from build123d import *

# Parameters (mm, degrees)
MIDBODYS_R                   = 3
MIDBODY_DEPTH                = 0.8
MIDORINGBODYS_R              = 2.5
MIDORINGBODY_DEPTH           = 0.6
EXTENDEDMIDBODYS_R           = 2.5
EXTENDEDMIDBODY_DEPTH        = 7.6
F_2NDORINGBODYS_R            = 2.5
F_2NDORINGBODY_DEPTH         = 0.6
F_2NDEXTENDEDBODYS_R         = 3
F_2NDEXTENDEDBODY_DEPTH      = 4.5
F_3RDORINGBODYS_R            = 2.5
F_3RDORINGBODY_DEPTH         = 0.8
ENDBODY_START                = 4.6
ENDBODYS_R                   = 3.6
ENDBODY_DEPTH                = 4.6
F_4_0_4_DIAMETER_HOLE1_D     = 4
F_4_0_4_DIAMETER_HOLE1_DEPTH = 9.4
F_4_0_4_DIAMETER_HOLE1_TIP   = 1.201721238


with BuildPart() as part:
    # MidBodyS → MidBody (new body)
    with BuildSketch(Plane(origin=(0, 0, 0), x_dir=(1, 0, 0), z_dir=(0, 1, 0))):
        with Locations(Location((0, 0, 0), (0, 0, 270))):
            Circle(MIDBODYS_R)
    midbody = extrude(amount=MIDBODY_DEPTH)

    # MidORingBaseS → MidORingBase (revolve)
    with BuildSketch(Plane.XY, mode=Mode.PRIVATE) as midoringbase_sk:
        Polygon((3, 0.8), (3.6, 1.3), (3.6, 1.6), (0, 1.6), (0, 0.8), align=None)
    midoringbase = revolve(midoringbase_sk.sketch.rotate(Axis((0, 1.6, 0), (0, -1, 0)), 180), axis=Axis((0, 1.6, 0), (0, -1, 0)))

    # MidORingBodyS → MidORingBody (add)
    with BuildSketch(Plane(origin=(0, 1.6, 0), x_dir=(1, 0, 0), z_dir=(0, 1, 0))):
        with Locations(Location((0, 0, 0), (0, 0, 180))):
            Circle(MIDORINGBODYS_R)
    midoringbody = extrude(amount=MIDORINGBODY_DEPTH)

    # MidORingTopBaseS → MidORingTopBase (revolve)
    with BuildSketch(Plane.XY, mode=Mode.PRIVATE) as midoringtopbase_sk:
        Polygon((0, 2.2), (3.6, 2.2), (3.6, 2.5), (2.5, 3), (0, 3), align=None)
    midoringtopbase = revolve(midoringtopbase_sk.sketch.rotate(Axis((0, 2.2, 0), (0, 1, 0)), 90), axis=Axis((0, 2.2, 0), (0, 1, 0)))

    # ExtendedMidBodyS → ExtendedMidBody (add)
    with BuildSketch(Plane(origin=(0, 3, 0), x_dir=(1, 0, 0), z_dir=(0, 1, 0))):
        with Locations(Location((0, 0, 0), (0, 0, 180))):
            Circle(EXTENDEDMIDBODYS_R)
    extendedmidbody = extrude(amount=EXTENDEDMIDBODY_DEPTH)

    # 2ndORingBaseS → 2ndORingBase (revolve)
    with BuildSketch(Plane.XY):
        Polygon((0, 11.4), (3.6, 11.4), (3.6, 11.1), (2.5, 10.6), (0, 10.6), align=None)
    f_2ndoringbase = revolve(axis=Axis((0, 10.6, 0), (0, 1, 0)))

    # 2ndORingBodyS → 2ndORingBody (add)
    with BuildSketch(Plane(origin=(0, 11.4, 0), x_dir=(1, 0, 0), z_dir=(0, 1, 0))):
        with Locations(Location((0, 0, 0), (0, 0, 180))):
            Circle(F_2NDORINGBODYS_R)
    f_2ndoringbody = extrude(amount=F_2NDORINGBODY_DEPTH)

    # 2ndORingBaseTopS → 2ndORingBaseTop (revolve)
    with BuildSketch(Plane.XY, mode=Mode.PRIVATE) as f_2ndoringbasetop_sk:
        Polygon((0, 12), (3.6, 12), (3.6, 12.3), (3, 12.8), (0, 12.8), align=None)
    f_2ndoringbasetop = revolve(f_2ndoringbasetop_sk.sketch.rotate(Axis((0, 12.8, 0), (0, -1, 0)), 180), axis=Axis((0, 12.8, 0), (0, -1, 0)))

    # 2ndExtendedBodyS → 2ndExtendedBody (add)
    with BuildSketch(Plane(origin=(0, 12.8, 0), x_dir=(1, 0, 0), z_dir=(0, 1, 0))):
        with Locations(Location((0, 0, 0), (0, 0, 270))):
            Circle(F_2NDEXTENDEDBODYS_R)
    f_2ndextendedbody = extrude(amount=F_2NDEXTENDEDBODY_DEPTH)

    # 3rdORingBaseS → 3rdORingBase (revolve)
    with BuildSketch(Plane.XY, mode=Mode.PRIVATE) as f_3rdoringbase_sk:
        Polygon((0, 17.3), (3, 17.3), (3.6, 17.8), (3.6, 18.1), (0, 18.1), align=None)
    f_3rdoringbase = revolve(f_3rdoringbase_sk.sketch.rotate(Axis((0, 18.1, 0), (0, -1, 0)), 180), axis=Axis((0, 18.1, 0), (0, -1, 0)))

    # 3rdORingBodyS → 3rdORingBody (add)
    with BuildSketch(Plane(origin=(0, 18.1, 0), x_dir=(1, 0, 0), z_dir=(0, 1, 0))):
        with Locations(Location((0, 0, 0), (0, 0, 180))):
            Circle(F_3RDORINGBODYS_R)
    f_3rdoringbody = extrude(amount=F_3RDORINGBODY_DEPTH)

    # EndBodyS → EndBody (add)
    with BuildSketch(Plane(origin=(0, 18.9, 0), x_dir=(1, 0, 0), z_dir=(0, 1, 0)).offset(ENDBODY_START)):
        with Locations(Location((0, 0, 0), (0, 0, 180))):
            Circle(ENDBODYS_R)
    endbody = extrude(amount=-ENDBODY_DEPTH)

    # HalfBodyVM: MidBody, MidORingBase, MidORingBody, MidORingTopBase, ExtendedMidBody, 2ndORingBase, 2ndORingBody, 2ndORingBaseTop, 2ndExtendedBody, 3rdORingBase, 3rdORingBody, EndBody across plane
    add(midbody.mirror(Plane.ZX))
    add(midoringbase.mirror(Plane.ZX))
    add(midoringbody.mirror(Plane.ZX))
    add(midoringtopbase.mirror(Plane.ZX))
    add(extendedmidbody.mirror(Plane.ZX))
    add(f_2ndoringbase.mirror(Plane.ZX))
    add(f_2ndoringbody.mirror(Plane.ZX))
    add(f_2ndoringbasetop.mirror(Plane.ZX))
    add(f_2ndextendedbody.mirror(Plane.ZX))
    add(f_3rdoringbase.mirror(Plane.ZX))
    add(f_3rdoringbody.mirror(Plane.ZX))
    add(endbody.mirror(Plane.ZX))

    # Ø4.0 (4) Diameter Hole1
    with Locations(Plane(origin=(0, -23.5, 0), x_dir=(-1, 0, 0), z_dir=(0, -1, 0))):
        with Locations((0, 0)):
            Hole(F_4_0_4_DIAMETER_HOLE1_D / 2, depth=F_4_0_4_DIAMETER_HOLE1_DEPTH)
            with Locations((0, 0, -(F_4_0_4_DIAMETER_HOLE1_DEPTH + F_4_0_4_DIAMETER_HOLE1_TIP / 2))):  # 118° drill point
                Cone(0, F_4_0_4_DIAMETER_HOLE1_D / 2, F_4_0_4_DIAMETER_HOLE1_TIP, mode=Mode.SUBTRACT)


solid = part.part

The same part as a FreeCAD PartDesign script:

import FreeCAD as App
import Part
import Sketcher

V = App.Vector

doc = App.newDocument("Part")
body = doc.addObject("PartDesign::Body", "Body")

sketch1 = doc.addObject("Sketcher::SketchObject", "Sketch")
body.addObject(sketch1)
sketch1.AttachmentSupport = (doc.XZ_Plane, [""])
sketch1.MapMode = "FlatFace"
sketch1.addGeometry(Part.Circle(V(0, 0, 0), V(0, 0, 1), 3), False)
sketch1.addConstraint([
    Sketcher.Constraint("Coincident", 0, 3, -1, 1),
    Sketcher.Constraint("Diameter", 0, 6.0),
])
pad1 = doc.addObject("PartDesign::Pad", "Pad")
body.addObject(pad1)
pad1.Profile = sketch1
pad1.Length = 0.8
pad1.Reversed = True

sketch2 = doc.addObject("Sketcher::SketchObject", "Sketch001")
body.addObject(sketch2)
sketch2.AttachmentSupport = (doc.XY_Plane, [""])
sketch2.MapMode = "FlatFace"
sketch2.addGeometry([
    Part.LineSegment(V(3, 0.8, 0), V(3.6, 1.3, 0)),
    Part.LineSegment(V(3.6, 1.3, 0), V(3.6, 1.6, 0)),
    Part.LineSegment(V(3.6, 1.6, 0), V(0, 1.6, 0)),
    Part.LineSegment(V(0, 1.6, 0), V(0, 0.8, 0)),
    Part.LineSegment(V(0, 0.8, 0), V(3, 0.8, 0)),
], False)
sketch2.addConstraint([
    Sketcher.Constraint("Coincident", 0, 2, 1, 1),
    Sketcher.Constraint("Coincident", 1, 2, 2, 1),
    Sketcher.Constraint("Coincident", 2, 2, 3, 1),
    Sketcher.Constraint("Coincident", 3, 2, 4, 1),
    Sketcher.Constraint("Coincident", 4, 2, 0, 1),
    Sketcher.Constraint("Vertical", 1),
    Sketcher.Constraint("Horizontal", 2),
    Sketcher.Constraint("Vertical", 3),
    Sketcher.Constraint("Horizontal", 4),
    Sketcher.Constraint("PointOnObject", 2, 2, -2),
    Sketcher.Constraint("DistanceX", 4, 1, 4, 2, 3.0),
    Sketcher.Constraint("DistanceX", 2, 2, 2, 1, 3.6),
    Sketcher.Constraint("DistanceY", 1, 1, 1, 2, 0.3),
    Sketcher.Constraint("DistanceY", 3, 2, 3, 1, 0.8),
    Sketcher.Constraint("DistanceY", -1, 1, 0, 2, 1.3),
])
revolution = doc.addObject("PartDesign::Revolution", "Revolution")
body.addObject(revolution)
revolution.Profile = sketch2
revolution.ReferenceAxis = (sketch2, ["V_Axis"])
revolution.Angle = 360

sketch3 = doc.addObject("Sketcher::SketchObject", "Sketch002")
body.addObject(sketch3)
sketch3.AttachmentSupport = (doc.XZ_Plane, [""])
sketch3.MapMode = "FlatFace"
sketch3.AttachmentOffset = App.Placement(V(0, 0, -1.6), App.Rotation())
sketch3.addGeometry(Part.Circle(V(0, 0, 0), V(0, 0, 1), 2.5), False)
sketch3.addConstraint([
    Sketcher.Constraint("Coincident", 0, 3, -1, 1),
    Sketcher.Constraint("Diameter", 0, 5.0),
])
pad2 = doc.addObject("PartDesign::Pad", "Pad001")
body.addObject(pad2)
pad2.Profile = sketch3
pad2.Length = 0.6
pad2.Reversed = True

sketch4 = doc.addObject("Sketcher::SketchObject", "Sketch003")
body.addObject(sketch4)
sketch4.AttachmentSupport = (doc.XY_Plane, [""])
sketch4.MapMode = "FlatFace"
sketch4.addGeometry([
    Part.LineSegment(V(0, 2.2, 0), V(3.6, 2.2, 0)),
    Part.LineSegment(V(3.6, 2.2, 0), V(3.6, 2.5, 0)),
    Part.LineSegment(V(3.6, 2.5, 0), V(2.5, 3, 0)),
    Part.LineSegment(V(2.5, 3, 0), V(0, 3, 0)),
    Part.LineSegment(V(0, 3, 0), V(0, 2.2, 0)),
], False)
sketch4.addConstraint([
    Sketcher.Constraint("Coincident", 0, 2, 1, 1),
    Sketcher.Constraint("Coincident", 1, 2, 2, 1),
    Sketcher.Constraint("Coincident", 2, 2, 3, 1),
    Sketcher.Constraint("Coincident", 3, 2, 4, 1),
    Sketcher.Constraint("Coincident", 4, 2, 0, 1),
    Sketcher.Constraint("Horizontal", 0),
    Sketcher.Constraint("Vertical", 1),
    Sketcher.Constraint("Horizontal", 3),
    Sketcher.Constraint("Vertical", 4),
    Sketcher.Constraint("PointOnObject", 3, 2, -2),
    Sketcher.Constraint("DistanceX", 0, 1, 0, 2, 3.6),
    Sketcher.Constraint("DistanceX", 3, 2, 3, 1, 2.5),
    Sketcher.Constraint("DistanceY", 1, 1, 1, 2, 0.3),
    Sketcher.Constraint("DistanceY", 4, 2, 4, 1, 0.8),
    Sketcher.Constraint("DistanceY", -1, 1, 2, 2, 3.0),
])
revolution2 = doc.addObject("PartDesign::Revolution", "Revolution001")
body.addObject(revolution2)
revolution2.Profile = sketch4
revolution2.ReferenceAxis = (sketch4, ["V_Axis"])
revolution2.Angle = 360

sketch5 = doc.addObject("Sketcher::SketchObject", "Sketch004")
body.addObject(sketch5)
sketch5.AttachmentSupport = (doc.XZ_Plane, [""])
sketch5.MapMode = "FlatFace"
sketch5.AttachmentOffset = App.Placement(V(0, 0, -3), App.Rotation())
sketch5.addGeometry(Part.Circle(V(0, 0, 0), V(0, 0, 1), 2.5), False)
sketch5.addConstraint([
    Sketcher.Constraint("Coincident", 0, 3, -1, 1),
    Sketcher.Constraint("Diameter", 0, 5.0),
])
pad3 = doc.addObject("PartDesign::Pad", "Pad002")
body.addObject(pad3)
pad3.Profile = sketch5
pad3.Length = 7.6
pad3.Reversed = True

sketch6 = doc.addObject("Sketcher::SketchObject", "Sketch005")
body.addObject(sketch6)
sketch6.AttachmentSupport = (doc.XY_Plane, [""])
sketch6.MapMode = "FlatFace"
sketch6.addGeometry([
    Part.LineSegment(V(3.6, 11.4, 0), V(0, 11.4, 0)),
    Part.LineSegment(V(0, 11.4, 0), V(0, 10.6, 0)),
    Part.LineSegment(V(0, 10.6, 0), V(2.5, 10.6, 0)),
    Part.LineSegment(V(2.5, 10.6, 0), V(3.6, 11.1, 0)),
    Part.LineSegment(V(3.6, 11.1, 0), V(3.6, 11.4, 0)),
], False)
sketch6.addConstraint([
    Sketcher.Constraint("Coincident", 0, 2, 1, 1),
    Sketcher.Constraint("Coincident", 1, 2, 2, 1),
    Sketcher.Constraint("Coincident", 2, 2, 3, 1),
    Sketcher.Constraint("Coincident", 3, 2, 4, 1),
    Sketcher.Constraint("Coincident", 4, 2, 0, 1),
    Sketcher.Constraint("Horizontal", 0),
    Sketcher.Constraint("Vertical", 1),
    Sketcher.Constraint("Horizontal", 2),
    Sketcher.Constraint("Vertical", 4),
    Sketcher.Constraint("PointOnObject", 0, 2, -2),
    Sketcher.Constraint("DistanceX", 0, 2, 0, 1, 3.6),
    Sketcher.Constraint("DistanceX", 2, 1, 2, 2, 2.5),
    Sketcher.Constraint("DistanceY", 1, 2, 1, 1, 0.8),
    Sketcher.Constraint("DistanceY", 4, 1, 4, 2, 0.3),
    Sketcher.Constraint("DistanceY", -1, 1, 0, 2, 11.4),
])
revolution3 = doc.addObject("PartDesign::Revolution", "Revolution002")
body.addObject(revolution3)
revolution3.Profile = sketch6
revolution3.ReferenceAxis = (sketch6, ["V_Axis"])
revolution3.Angle = 360

sketch7 = doc.addObject("Sketcher::SketchObject", "Sketch006")
body.addObject(sketch7)
sketch7.AttachmentSupport = (doc.XZ_Plane, [""])
sketch7.MapMode = "FlatFace"
sketch7.AttachmentOffset = App.Placement(V(0, 0, -11.4), App.Rotation())
sketch7.addGeometry(Part.Circle(V(0, 0, 0), V(0, 0, 1), 2.5), False)
sketch7.addConstraint([
    Sketcher.Constraint("Coincident", 0, 3, -1, 1),
    Sketcher.Constraint("Diameter", 0, 5.0),
])
pad4 = doc.addObject("PartDesign::Pad", "Pad003")
body.addObject(pad4)
pad4.Profile = sketch7
pad4.Length = 0.6
pad4.Reversed = True

sketch8 = doc.addObject("Sketcher::SketchObject", "Sketch007")
body.addObject(sketch8)
sketch8.AttachmentSupport = (doc.XY_Plane, [""])
sketch8.MapMode = "FlatFace"
sketch8.addGeometry([
    Part.LineSegment(V(0, 12, 0), V(3.6, 12, 0)),
    Part.LineSegment(V(3.6, 12, 0), V(3.6, 12.3, 0)),
    Part.LineSegment(V(3.6, 12.3, 0), V(3, 12.8, 0)),
    Part.LineSegment(V(3, 12.8, 0), V(0, 12.8, 0)),
    Part.LineSegment(V(0, 12.8, 0), V(0, 12, 0)),
], False)
sketch8.addConstraint([
    Sketcher.Constraint("Coincident", 0, 2, 1, 1),
    Sketcher.Constraint("Coincident", 1, 2, 2, 1),
    Sketcher.Constraint("Coincident", 2, 2, 3, 1),
    Sketcher.Constraint("Coincident", 3, 2, 4, 1),
    Sketcher.Constraint("Coincident", 4, 2, 0, 1),
    Sketcher.Constraint("Horizontal", 0),
    Sketcher.Constraint("Vertical", 1),
    Sketcher.Constraint("Horizontal", 3),
    Sketcher.Constraint("Vertical", 4),
    Sketcher.Constraint("PointOnObject", 3, 2, -2),
    Sketcher.Constraint("DistanceX", 3, 2, 3, 1, 3.0),
    Sketcher.Constraint("DistanceX", 0, 1, 0, 2, 3.6),
    Sketcher.Constraint("DistanceY", 1, 1, 1, 2, 0.3),
    Sketcher.Constraint("DistanceY", 4, 2, 4, 1, 0.8),
    Sketcher.Constraint("DistanceY", -1, 1, 0, 2, 12.0),
])
revolution4 = doc.addObject("PartDesign::Revolution", "Revolution003")
body.addObject(revolution4)
revolution4.Profile = sketch8
revolution4.ReferenceAxis = (sketch8, ["V_Axis"])
revolution4.Angle = 360

sketch9 = doc.addObject("Sketcher::SketchObject", "Sketch008")
body.addObject(sketch9)
sketch9.AttachmentSupport = (doc.XZ_Plane, [""])
sketch9.MapMode = "FlatFace"
sketch9.AttachmentOffset = App.Placement(V(0, 0, -12.8), App.Rotation())
sketch9.addGeometry(Part.Circle(V(0, 0, 0), V(0, 0, 1), 3), False)
sketch9.addConstraint([
    Sketcher.Constraint("Coincident", 0, 3, -1, 1),
    Sketcher.Constraint("Diameter", 0, 6.0),
])
pad5 = doc.addObject("PartDesign::Pad", "Pad004")
body.addObject(pad5)
pad5.Profile = sketch9
pad5.Length = 4.5
pad5.Reversed = True

sketch10 = doc.addObject("Sketcher::SketchObject", "Sketch009")
body.addObject(sketch10)
sketch10.AttachmentSupport = (doc.XY_Plane, [""])
sketch10.MapMode = "FlatFace"
sketch10.addGeometry([
    Part.LineSegment(V(0, 17.3, 0), V(3, 17.3, 0)),
    Part.LineSegment(V(3, 17.3, 0), V(3.6, 17.8, 0)),
    Part.LineSegment(V(3.6, 17.8, 0), V(3.6, 18.1, 0)),
    Part.LineSegment(V(3.6, 18.1, 0), V(0, 18.1, 0)),
    Part.LineSegment(V(0, 18.1, 0), V(0, 17.3, 0)),
], False)
sketch10.addConstraint([
    Sketcher.Constraint("Coincident", 0, 2, 1, 1),
    Sketcher.Constraint("Coincident", 1, 2, 2, 1),
    Sketcher.Constraint("Coincident", 2, 2, 3, 1),
    Sketcher.Constraint("Coincident", 3, 2, 4, 1),
    Sketcher.Constraint("Coincident", 4, 2, 0, 1),
    Sketcher.Constraint("Horizontal", 0),
    Sketcher.Constraint("Vertical", 2),
    Sketcher.Constraint("Horizontal", 3),
    Sketcher.Constraint("Vertical", 4),
    Sketcher.Constraint("PointOnObject", 3, 2, -2),
    Sketcher.Constraint("DistanceX", 0, 1, 0, 2, 3.0),
    Sketcher.Constraint("DistanceX", 3, 2, 3, 1, 3.6),
    Sketcher.Constraint("DistanceY", 2, 1, 2, 2, 0.3),
    Sketcher.Constraint("DistanceY", 4, 2, 4, 1, 0.8),
    Sketcher.Constraint("DistanceY", -1, 1, 0, 2, 17.3),
])
revolution5 = doc.addObject("PartDesign::Revolution", "Revolution004")
body.addObject(revolution5)
revolution5.Profile = sketch10
revolution5.ReferenceAxis = (sketch10, ["V_Axis"])
revolution5.Angle = 360

sketch11 = doc.addObject("Sketcher::SketchObject", "Sketch010")
body.addObject(sketch11)
sketch11.AttachmentSupport = (doc.XZ_Plane, [""])
sketch11.MapMode = "FlatFace"
sketch11.AttachmentOffset = App.Placement(V(0, 0, -18.1), App.Rotation())
sketch11.addGeometry(Part.Circle(V(0, 0, 0), V(0, 0, 1), 2.5), False)
sketch11.addConstraint([
    Sketcher.Constraint("Coincident", 0, 3, -1, 1),
    Sketcher.Constraint("Diameter", 0, 5.0),
])
pad6 = doc.addObject("PartDesign::Pad", "Pad005")
body.addObject(pad6)
pad6.Profile = sketch11
pad6.Length = 0.8
pad6.Reversed = True

sketch12 = doc.addObject("Sketcher::SketchObject", "Sketch011")
body.addObject(sketch12)
sketch12.AttachmentSupport = (doc.XZ_Plane, [""])
sketch12.MapMode = "FlatFace"
sketch12.AttachmentOffset = App.Placement(V(0, 0, -23.5), App.Rotation())
sketch12.addGeometry(Part.Circle(V(0, 0, 0), V(0, 0, 1), 3.6), False)
sketch12.addConstraint([
    Sketcher.Constraint("Coincident", 0, 3, -1, 1),
    Sketcher.Constraint("Diameter", 0, 7.2),
])
pad7 = doc.addObject("PartDesign::Pad", "Pad006")
body.addObject(pad7)
pad7.Profile = sketch12
pad7.Length = 4.6
doc.recompute()

mirrored = doc.addObject("PartDesign::Mirrored", "Mirrored")
body.addObject(mirrored)
mirrored.Originals = [pad1, revolution, pad2, revolution2, pad3, revolution3, pad4, revolution4, pad5, revolution5, pad6, pad7]
mirrored.MirrorPlane = (doc.XZ_Plane, [""])
body.Tip = mirrored

sketch13 = doc.addObject("Sketcher::SketchObject", "Sketch012")
body.addObject(sketch13)
sketch13.AttachmentSupport = (doc.XZ_Plane, [""])
sketch13.MapMode = "FlatFace"
sketch13.AttachmentOffset = App.Placement(V(0, 0, 23.5), App.Rotation())
sketch13.addGeometry(Part.Circle(V(0, 0, 0), V(0, 0, 1), 2), False)
sketch13.addConstraint([
    Sketcher.Constraint("Coincident", 0, 3, -1, 1),
    Sketcher.Constraint("Diameter", 0, 4.0),
])
doc.recompute()
hole = doc.addObject("PartDesign::Hole", "Hole")
body.addObject(hole)
hole.Profile = sketch13
hole.ThreadType = "None"
hole.Diameter = 4
hole.DepthType = "Dimension"
hole.Depth = 9.4
hole.DrillPoint = "Angled"
hole.DrillPointAngle = 118

doc.recompute()
